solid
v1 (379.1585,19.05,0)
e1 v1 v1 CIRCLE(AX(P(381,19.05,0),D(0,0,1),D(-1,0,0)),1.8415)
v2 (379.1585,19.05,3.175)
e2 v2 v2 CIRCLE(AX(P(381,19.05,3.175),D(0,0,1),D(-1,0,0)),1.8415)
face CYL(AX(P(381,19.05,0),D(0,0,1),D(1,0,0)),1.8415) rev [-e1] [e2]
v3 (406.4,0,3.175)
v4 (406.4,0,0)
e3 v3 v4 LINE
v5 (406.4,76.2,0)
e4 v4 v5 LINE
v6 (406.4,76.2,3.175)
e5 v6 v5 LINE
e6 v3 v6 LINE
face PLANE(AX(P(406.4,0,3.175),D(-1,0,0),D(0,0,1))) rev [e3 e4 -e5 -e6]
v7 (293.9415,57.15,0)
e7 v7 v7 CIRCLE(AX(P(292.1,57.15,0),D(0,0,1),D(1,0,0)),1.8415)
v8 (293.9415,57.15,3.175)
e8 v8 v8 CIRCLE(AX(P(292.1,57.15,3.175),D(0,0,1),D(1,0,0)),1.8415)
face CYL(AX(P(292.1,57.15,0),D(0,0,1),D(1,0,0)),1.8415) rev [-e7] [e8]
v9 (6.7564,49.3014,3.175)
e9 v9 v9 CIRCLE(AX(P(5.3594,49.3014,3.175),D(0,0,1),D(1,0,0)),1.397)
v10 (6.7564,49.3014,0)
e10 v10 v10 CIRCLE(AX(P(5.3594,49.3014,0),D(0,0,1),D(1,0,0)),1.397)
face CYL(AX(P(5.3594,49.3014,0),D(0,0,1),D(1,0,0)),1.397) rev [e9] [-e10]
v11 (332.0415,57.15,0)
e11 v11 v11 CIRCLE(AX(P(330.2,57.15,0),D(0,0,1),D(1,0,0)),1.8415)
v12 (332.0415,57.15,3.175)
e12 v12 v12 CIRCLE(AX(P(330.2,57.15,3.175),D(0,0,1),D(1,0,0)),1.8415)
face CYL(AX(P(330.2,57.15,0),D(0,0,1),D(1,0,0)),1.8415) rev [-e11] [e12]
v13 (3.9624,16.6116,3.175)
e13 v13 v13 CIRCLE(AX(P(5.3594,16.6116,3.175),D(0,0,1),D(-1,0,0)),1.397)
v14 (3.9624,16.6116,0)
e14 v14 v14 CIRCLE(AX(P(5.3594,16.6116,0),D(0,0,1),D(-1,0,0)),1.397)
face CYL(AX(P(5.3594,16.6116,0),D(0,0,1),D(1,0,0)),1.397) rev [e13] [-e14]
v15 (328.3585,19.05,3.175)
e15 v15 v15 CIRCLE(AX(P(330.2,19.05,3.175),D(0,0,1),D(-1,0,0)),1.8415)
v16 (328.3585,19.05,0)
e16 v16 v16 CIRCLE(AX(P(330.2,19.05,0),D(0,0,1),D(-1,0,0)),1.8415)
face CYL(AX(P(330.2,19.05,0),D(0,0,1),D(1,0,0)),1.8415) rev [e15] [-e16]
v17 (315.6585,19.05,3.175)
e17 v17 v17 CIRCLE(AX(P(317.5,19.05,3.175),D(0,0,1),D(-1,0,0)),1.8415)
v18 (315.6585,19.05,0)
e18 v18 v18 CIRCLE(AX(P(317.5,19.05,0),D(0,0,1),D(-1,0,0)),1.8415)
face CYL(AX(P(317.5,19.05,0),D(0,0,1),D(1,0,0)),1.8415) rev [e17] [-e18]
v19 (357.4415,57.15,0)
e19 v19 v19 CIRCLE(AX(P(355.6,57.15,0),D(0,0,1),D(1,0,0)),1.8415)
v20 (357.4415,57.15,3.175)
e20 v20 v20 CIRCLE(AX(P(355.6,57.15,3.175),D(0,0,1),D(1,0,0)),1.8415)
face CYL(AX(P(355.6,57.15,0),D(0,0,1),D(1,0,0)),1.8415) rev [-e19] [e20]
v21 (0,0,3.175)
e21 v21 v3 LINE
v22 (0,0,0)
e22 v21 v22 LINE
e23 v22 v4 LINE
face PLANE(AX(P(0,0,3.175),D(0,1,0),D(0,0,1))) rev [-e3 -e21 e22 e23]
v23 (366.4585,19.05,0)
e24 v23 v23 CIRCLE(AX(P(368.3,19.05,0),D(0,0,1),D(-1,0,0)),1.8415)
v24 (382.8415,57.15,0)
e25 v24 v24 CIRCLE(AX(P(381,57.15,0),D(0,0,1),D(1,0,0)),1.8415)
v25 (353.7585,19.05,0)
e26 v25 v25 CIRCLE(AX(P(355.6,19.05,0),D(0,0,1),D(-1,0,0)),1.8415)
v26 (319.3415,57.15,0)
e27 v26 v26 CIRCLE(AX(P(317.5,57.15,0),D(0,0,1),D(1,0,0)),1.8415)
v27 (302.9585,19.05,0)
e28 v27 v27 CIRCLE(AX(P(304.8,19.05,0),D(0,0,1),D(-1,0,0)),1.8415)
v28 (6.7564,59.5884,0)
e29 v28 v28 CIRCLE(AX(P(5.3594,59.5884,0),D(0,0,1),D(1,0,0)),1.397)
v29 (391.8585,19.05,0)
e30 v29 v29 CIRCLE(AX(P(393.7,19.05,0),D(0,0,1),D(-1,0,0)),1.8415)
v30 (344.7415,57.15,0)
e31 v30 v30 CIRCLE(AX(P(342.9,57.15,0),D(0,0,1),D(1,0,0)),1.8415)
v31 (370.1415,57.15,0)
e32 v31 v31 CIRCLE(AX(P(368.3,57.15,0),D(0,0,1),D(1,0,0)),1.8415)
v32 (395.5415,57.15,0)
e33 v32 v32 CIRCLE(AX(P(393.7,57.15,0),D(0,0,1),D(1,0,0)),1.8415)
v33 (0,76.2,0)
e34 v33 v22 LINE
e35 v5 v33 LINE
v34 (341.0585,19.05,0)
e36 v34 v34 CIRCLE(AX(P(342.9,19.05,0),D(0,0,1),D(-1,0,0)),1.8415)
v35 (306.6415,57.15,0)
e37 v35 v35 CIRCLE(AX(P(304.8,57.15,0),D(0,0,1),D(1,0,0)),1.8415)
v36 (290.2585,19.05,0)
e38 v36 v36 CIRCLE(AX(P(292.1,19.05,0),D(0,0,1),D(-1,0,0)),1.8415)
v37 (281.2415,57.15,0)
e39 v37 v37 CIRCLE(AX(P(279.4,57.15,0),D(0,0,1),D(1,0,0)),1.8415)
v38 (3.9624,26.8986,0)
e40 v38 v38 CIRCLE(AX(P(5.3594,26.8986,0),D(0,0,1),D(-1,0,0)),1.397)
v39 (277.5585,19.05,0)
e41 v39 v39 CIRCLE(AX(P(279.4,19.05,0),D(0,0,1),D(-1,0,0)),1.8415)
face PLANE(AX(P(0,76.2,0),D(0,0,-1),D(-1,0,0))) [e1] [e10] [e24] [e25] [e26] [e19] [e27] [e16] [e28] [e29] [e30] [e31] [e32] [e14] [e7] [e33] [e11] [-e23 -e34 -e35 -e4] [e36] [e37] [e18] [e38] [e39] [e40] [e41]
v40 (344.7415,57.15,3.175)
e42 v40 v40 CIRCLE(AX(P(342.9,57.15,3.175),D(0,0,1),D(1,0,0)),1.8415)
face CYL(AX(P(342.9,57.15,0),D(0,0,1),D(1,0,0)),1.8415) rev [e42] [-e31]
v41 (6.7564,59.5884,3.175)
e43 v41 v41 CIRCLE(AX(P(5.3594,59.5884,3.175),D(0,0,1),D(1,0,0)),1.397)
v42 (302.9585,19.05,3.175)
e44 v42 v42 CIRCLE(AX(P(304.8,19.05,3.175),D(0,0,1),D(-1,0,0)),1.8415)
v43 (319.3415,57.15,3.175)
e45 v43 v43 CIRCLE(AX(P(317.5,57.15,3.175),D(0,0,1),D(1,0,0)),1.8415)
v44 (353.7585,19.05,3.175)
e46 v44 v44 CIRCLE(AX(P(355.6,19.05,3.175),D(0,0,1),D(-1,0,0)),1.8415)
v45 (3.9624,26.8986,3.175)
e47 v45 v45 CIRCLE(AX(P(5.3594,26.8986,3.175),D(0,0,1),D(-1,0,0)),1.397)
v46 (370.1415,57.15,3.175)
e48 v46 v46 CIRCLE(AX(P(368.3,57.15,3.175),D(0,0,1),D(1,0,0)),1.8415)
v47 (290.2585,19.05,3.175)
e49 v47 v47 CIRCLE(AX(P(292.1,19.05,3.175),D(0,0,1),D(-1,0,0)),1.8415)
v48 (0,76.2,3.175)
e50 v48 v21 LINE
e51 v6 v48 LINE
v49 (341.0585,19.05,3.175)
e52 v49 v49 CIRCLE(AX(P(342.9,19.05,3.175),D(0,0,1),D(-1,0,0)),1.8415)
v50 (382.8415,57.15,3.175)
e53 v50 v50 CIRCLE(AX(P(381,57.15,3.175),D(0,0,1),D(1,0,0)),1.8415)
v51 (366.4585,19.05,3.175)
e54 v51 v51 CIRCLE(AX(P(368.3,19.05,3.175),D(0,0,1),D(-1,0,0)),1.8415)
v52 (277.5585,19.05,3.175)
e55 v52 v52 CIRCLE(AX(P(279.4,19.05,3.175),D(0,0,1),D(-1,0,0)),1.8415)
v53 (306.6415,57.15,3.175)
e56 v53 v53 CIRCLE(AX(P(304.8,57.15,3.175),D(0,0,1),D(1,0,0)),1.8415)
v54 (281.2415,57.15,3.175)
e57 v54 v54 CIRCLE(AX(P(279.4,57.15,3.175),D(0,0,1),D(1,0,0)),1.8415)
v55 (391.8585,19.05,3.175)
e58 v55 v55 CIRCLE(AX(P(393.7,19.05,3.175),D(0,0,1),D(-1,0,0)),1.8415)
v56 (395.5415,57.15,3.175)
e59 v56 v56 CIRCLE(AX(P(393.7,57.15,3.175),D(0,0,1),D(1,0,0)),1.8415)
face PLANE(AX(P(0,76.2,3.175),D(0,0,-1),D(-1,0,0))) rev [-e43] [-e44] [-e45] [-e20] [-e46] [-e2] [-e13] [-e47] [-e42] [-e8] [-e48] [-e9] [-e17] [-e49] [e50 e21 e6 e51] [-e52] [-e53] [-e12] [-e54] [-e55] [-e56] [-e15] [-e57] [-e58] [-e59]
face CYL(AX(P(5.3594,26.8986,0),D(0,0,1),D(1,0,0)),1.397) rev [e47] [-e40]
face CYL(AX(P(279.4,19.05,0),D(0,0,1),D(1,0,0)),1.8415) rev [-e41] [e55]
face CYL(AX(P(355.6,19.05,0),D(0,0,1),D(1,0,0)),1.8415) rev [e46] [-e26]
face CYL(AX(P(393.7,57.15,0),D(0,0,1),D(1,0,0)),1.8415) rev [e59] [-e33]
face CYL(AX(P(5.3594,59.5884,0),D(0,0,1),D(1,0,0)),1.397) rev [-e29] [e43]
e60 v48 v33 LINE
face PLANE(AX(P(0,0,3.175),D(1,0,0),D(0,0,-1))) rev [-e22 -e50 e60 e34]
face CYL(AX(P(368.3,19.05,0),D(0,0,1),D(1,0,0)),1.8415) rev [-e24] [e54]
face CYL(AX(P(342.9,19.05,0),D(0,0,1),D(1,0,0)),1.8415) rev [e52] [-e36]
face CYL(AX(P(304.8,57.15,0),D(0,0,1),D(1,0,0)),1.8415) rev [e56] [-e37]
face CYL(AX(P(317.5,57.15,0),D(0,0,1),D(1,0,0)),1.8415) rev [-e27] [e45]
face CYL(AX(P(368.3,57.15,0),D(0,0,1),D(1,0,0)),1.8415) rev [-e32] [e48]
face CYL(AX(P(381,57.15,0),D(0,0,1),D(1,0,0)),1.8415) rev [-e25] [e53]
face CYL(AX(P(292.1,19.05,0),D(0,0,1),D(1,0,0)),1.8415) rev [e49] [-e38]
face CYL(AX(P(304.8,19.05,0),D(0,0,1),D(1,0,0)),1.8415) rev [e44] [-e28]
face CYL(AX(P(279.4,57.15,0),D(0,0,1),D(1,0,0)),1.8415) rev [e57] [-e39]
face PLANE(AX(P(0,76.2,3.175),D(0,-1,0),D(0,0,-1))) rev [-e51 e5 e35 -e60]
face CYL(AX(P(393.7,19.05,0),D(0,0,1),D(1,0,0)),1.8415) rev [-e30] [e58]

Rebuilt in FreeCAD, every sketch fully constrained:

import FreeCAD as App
import Part
import Sketcher
Q = App.Units.Quantity


def add_polygon(sketch, points):
    """Adds a closed chain of lines whose ends are joined by coincident constraints."""
    first, n = sketch.GeometryCount, len(points)
    for a, b in zip(points, points[1:] + points[:1]):
        sketch.addGeometry(Part.LineSegment(App.Vector(*a, 0), App.Vector(*b, 0)), False)
    for i in range(n):
        sketch.addConstraint(Sketcher.Constraint("Coincident", first + i, 2, first + (i + 1) % n, 1))

doc = App.newDocument("Part")
body = doc.addObject("PartDesign::Body", "Body")

# Sketch on XY plane
sketch1 = doc.addObject("Sketcher::SketchObject", "Sketch")
body.addObject(sketch1)
sketch1.AttachmentSupport = (doc.XY_Plane, [""])
sketch1.MapMode = "FlatFace"
add_polygon(sketch1, [(0, 76.2), (0, 0), (406.4, 0), (406.4, 76.2)])  # lines 0-3
sketch1.addConstraint([
    Sketcher.Constraint("Vertical", 0),
    Sketcher.Constraint("Horizontal", 1),
    Sketcher.Constraint("Vertical", 2),
    Sketcher.Constraint("Horizontal", 3),
    Sketcher.Constraint("Coincident", 0, 2, -1, 1),
    Sketcher.Constraint("DistanceX", 1, 1, 1, 2, Q("16 in")),
    Sketcher.Constraint("DistanceY", 0, 2, 0, 1, Q("3 in")),
])
pad1 = doc.addObject("PartDesign::Pad", "Pad")
body.addObject(pad1)
pad1.Profile = sketch1
pad1.Length = Q("0.125 in")

# Sketch on XY plane
sketch2 = doc.addObject("Sketcher::SketchObject", "Sketch001")
body.addObject(sketch2)
sketch2.AttachmentSupport = (doc.XY_Plane, [""])
sketch2.MapMode = "FlatFace"
sketch2.AttachmentOffset = App.Placement(App.Vector(0, 0, 0.125 * 25.4), App.Rotation())
sketch2.addGeometry([
    Part.Circle(App.Vector(5.3594, 59.5884, 0), App.Vector(0, 0, 1), 1.397),
    Part.Circle(App.Vector(5.3594, 16.6116, 0), App.Vector(0, 0, 1), 1.397),
    Part.Circle(App.Vector(5.3594, 49.3014, 0), App.Vector(0, 0, 1), 1.397),
    Part.Circle(App.Vector(5.3594, 26.8986, 0), App.Vector(0, 0, 1), 1.397),
], False)
sketch2.addConstraint([
    Sketcher.Constraint("Equal", 0, 1),
    Sketcher.Constraint("Equal", 1, 2),
    Sketcher.Constraint("Equal", 2, 3),
    Sketcher.Constraint("Vertical", 0, 3, 1, 3),
    Sketcher.Constraint("Vertical", 1, 3, 2, 3),
    Sketcher.Constraint("Vertical", 2, 3, 3, 3),
    Sketcher.Constraint("Diameter", 0, Q("0.11 in")),
    Sketcher.Constraint("DistanceX", -1, 1, 0, 3, Q("0.211 in")),
    Sketcher.Constraint("DistanceY", -1, 1, 0, 3, Q("2.346 in")),
    Sketcher.Constraint("DistanceY", -1, 1, 1, 3, Q("0.654 in")),
    Sketcher.Constraint("DistanceY", -1, 1, 2, 3, Q("1.941 in")),
    Sketcher.Constraint("DistanceY", -1, 1, 3, 3, Q("1.059 in")),
])
pocket1 = doc.addObject("PartDesign::Pocket", "Pocket")
body.addObject(pocket1)
pocket1.Profile = sketch2
pocket1.Type = "ThroughAll"

# Sketch on XY plane
sketch3 = doc.addObject("Sketcher::SketchObject", "Sketch002")
body.addObject(sketch3)
sketch3.AttachmentSupport = (doc.XY_Plane, [""])
sketch3.MapMode = "FlatFace"
sketch3.AttachmentOffset = App.Placement(App.Vector(0, 0, 0.125 * 25.4), App.Rotation())
sketch3.addGeometry([
    Part.Circle(App.Vector(279.4, 57.15, 0), App.Vector(0, 0, 1), 1.8415),  # 0
    Part.Circle(App.Vector(292.1, 57.15, 0), App.Vector(0, 0, 1), 1.8415),  # 1
    Part.Circle(App.Vector(304.8, 57.15, 0), App.Vector(0, 0, 1), 1.8415),  # 2
    Part.Circle(App.Vector(317.5, 57.15, 0), App.Vector(0, 0, 1), 1.8415),  # 3
    Part.Circle(App.Vector(330.2, 57.15, 0), App.Vector(0, 0, 1), 1.8415),  # 4
    Part.Circle(App.Vector(342.9, 57.15, 0), App.Vector(0, 0, 1), 1.8415),  # 5
    Part.Circle(App.Vector(355.6, 57.15, 0), App.Vector(0, 0, 1), 1.8415),  # 6
    Part.Circle(App.Vector(368.3, 57.15, 0), App.Vector(0, 0, 1), 1.8415),  # 7
    Part.Circle(App.Vector(381, 57.15, 0), App.Vector(0, 0, 1), 1.8415),  # 8
    Part.Circle(App.Vector(393.7, 57.15, 0), App.Vector(0, 0, 1), 1.8415),  # 9
    Part.Circle(App.Vector(393.7, 19.05, 0), App.Vector(0, 0, 1), 1.8415),  # 10
    Part.Circle(App.Vector(381, 19.05, 0), App.Vector(0, 0, 1), 1.8415),  # 11
    Part.Circle(App.Vector(368.3, 19.05, 0), App.Vector(0, 0, 1), 1.8415),  # 12
    Part.Circle(App.Vector(355.6, 19.05, 0), App.Vector(0, 0, 1), 1.8415),  # 13
    Part.Circle(App.Vector(342.9, 19.05, 0), App.Vector(0, 0, 1), 1.8415),  # 14
    Part.Circle(App.Vector(330.2, 19.05, 0), App.Vector(0, 0, 1), 1.8415),  # 15
    Part.Circle(App.Vector(317.5, 19.05, 0), App.Vector(0, 0, 1), 1.8415),  # 16
    Part.Circle(App.Vector(304.8, 19.05, 0), App.Vector(0, 0, 1), 1.8415),  # 17
    Part.Circle(App.Vector(292.1, 19.05, 0), App.Vector(0, 0, 1), 1.8415),  # 18
    Part.Circle(App.Vector(279.4, 19.05, 0), App.Vector(0, 0, 1), 1.8415),  # 19
], False)
sketch3.addConstraint([
    Sketcher.Constraint("Equal", 0, 1),
    Sketcher.Constraint("Equal", 1, 2),
    Sketcher.Constraint("Equal", 2, 3),
    Sketcher.Constraint("Equal", 3, 4),
    Sketcher.Constraint("Equal", 4, 5),
    Sketcher.Constraint("Equal", 5, 6),
    Sketcher.Constraint("Equal", 6, 7),
    Sketcher.Constraint("Equal", 7, 8),
    Sketcher.Constraint("Equal", 8, 9),
    Sketcher.Constraint("Equal", 9, 10),
    Sketcher.Constraint("Equal", 10, 11),
    Sketcher.Constraint("Equal", 11, 12),
    Sketcher.Constraint("Equal", 12, 13),
    Sketcher.Constraint("Equal", 13, 14),
    Sketcher.Constraint("Equal", 14, 15),
    Sketcher.Constraint("Equal", 15, 16),
    Sketcher.Constraint("Equal", 16, 17),
    Sketcher.Constraint("Equal", 17, 18),
    Sketcher.Constraint("Equal", 18, 19),
    Sketcher.Constraint("Horizontal", 0, 3, 1, 3),
    Sketcher.Constraint("Horizontal", 1, 3, 2, 3),
    Sketcher.Constraint("Horizontal", 2, 3, 3, 3),
    Sketcher.Constraint("Horizontal", 3, 3, 4, 3),
    Sketcher.Constraint("Horizontal", 4, 3, 5, 3),
    Sketcher.Constraint("Horizontal", 5, 3, 6, 3),
    Sketcher.Constraint("Horizontal", 6, 3, 7, 3),
    Sketcher.Constraint("Horizontal", 7, 3, 8, 3),
    Sketcher.Constraint("Horizontal", 8, 3, 9, 3),
    Sketcher.Constraint("Horizontal", 10, 3, 11, 3),
    Sketcher.Constraint("Horizontal", 11, 3, 12, 3),
    Sketcher.Constraint("Horizontal", 12, 3, 13, 3),
    Sketcher.Constraint("Horizontal", 13, 3, 14, 3),
    Sketcher.Constraint("Horizontal", 14, 3, 15, 3),
    Sketcher.Constraint("Horizontal", 15, 3, 16, 3),
    Sketcher.Constraint("Horizontal", 16, 3, 17, 3),
    Sketcher.Constraint("Horizontal", 17, 3, 18, 3),
    Sketcher.Constraint("Horizontal", 18, 3, 19, 3),
    Sketcher.Constraint("Vertical", 9, 3, 10, 3),
    Sketcher.Constraint("Vertical", 8, 3, 11, 3),
    Sketcher.Constraint("Vertical", 7, 3, 12, 3),
    Sketcher.Constraint("Vertical", 6, 3, 13, 3),
    Sketcher.Constraint("Vertical", 5, 3, 14, 3),
    Sketcher.Constraint("Vertical", 4, 3, 15, 3),
    Sketcher.Constraint("Vertical", 3, 3, 16, 3),
    Sketcher.Constraint("Vertical", 2, 3, 17, 3),
    Sketcher.Constraint("Vertical", 1, 3, 18, 3),
    Sketcher.Constraint("Vertical", 0, 3, 19, 3),
    Sketcher.Constraint("Diameter", 0, Q("0.145 in")),
    Sketcher.Constraint("DistanceX", -1, 1, 0, 3, Q("11 in")),
    Sketcher.Constraint("DistanceX", -1, 1, 2, 3, Q("12 in")),
    Sketcher.Constraint("DistanceX", -1, 1, 4, 3, Q("13 in")),
    Sketcher.Constraint("DistanceX", -1, 1, 6, 3, Q("14 in")),
    Sketcher.Constraint("DistanceX", -1, 1, 8, 3, Q("15 in")),
    Sketcher.Constraint("DistanceX", 1, 3, 3, 3, Q("1 in")),
    Sketcher.Constraint("DistanceX", 3, 3, 5, 3, Q("1 in")),
    Sketcher.Constraint("DistanceX", 5, 3, 7, 3, Q("1 in")),
    Sketcher.Constraint("DistanceX", 7, 3, 9, 3, Q("1 in")),
    Sketcher.Constraint("DistanceX", -1, 1, 1, 3, Q("11.5 in")),
    Sketcher.Constraint("DistanceY", 10, 3, 9, 3, Q("1.5 in")),
    Sketcher.Constraint("DistanceY", -1, 1, 0, 3, Q("2.25 in")),
])
pocket2 = doc.addObject("PartDesign::Pocket", "Pocket001")
body.addObject(pocket2)
pocket2.Profile = sketch3
pocket2.Type = "ThroughAll"

doc.recompute()
